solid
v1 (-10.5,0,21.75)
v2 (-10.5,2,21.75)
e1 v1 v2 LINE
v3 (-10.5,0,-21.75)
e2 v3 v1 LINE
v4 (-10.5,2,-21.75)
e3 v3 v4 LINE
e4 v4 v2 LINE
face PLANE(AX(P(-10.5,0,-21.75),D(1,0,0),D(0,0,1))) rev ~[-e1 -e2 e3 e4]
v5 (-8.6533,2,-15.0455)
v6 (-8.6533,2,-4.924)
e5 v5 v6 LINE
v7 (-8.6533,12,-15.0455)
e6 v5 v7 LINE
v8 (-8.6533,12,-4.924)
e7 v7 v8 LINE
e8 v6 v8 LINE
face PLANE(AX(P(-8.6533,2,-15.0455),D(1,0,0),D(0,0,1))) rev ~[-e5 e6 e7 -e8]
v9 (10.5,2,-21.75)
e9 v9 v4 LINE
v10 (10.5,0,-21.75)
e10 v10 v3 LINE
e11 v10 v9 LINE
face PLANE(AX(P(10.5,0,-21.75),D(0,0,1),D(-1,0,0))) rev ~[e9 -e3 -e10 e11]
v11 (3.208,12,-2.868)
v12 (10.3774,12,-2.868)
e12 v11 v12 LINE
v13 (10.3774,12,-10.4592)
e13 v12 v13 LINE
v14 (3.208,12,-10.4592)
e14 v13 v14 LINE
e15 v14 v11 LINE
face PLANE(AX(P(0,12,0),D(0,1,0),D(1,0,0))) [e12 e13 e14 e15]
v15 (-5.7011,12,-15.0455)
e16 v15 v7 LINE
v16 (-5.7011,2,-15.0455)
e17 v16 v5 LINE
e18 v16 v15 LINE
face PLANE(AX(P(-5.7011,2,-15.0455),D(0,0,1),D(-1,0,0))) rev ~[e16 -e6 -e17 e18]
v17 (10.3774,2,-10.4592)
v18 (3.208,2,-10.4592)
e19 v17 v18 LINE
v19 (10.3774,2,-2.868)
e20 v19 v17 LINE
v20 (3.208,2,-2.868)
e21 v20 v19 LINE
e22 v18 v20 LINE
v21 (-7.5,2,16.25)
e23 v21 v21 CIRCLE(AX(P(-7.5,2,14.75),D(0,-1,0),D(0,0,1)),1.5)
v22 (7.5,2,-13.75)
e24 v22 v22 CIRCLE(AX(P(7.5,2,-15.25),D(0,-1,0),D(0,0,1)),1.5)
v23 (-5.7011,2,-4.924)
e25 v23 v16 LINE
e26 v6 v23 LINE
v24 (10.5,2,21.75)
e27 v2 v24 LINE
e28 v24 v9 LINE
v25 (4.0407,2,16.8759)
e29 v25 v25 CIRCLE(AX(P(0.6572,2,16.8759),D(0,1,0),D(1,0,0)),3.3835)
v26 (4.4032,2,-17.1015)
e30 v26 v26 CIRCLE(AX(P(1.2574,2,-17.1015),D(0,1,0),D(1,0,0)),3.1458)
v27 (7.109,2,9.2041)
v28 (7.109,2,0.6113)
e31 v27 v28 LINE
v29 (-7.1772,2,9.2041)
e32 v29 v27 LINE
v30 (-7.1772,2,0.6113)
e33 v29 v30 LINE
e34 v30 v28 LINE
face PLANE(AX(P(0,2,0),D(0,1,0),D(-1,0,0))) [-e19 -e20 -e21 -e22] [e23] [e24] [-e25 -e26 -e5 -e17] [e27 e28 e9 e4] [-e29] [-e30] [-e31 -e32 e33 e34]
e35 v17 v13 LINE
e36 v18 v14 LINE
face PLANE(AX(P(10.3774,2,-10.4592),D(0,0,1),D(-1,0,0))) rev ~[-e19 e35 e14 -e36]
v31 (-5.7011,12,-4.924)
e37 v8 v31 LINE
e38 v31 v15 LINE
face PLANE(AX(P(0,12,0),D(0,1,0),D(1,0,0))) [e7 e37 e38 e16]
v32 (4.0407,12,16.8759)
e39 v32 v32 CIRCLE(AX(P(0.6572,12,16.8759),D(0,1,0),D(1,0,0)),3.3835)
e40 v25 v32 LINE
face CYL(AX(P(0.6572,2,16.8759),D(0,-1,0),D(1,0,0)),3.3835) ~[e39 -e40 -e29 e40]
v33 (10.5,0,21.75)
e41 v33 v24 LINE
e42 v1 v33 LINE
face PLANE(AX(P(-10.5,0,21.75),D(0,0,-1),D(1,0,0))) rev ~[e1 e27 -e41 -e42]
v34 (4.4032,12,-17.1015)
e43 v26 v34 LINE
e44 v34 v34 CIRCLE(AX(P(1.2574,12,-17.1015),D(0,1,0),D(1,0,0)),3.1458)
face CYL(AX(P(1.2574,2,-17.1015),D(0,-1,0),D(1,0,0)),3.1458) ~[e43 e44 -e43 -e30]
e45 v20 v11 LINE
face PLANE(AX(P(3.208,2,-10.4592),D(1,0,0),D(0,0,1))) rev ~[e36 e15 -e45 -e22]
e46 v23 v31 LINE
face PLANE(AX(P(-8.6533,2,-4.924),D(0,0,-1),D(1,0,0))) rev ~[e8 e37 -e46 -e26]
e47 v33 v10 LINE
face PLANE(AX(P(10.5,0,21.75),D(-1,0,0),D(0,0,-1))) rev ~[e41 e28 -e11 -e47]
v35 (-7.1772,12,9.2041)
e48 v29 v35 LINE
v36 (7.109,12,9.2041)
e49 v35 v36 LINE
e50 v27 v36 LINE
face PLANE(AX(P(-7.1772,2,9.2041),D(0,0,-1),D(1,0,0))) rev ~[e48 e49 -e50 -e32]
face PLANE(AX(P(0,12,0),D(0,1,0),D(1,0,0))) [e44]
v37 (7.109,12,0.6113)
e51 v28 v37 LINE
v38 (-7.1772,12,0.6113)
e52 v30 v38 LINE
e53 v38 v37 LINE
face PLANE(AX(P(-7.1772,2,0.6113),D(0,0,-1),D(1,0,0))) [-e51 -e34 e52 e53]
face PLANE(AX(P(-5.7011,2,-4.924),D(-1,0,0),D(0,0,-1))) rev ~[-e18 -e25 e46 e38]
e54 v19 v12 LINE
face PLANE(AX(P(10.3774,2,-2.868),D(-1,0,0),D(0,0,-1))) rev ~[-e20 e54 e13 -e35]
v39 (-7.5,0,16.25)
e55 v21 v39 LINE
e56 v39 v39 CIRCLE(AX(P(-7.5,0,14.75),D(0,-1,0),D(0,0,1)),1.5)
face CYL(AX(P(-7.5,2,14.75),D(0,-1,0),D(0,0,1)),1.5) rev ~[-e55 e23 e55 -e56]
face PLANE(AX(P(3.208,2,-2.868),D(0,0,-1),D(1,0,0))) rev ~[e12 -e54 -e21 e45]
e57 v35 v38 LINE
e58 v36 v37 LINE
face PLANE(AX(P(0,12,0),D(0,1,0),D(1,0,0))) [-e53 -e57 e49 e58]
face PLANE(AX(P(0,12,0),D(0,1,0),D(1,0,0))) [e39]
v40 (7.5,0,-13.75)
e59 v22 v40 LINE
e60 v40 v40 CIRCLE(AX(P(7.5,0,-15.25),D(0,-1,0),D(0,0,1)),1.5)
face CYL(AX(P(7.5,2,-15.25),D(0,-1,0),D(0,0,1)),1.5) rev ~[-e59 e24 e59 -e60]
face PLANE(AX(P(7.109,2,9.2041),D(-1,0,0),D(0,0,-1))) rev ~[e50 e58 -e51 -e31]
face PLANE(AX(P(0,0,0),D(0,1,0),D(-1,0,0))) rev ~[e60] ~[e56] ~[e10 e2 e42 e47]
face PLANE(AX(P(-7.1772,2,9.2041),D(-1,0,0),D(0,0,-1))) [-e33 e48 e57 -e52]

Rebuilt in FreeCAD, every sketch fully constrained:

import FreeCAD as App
import Part
import Sketcher


def add_polygon(sketch, points):
    """Adds a closed chain of lines whose ends are joined by coincident constraints."""
    first, n = sketch.GeometryCount, len(points)
    for a, b in zip(points, points[1:] + points[:1]):
        sketch.addGeometry(Part.LineSegment(App.Vector(*a, 0), App.Vector(*b, 0)), False)
    for i in range(n):
        sketch.addConstraint(Sketcher.Constraint("Coincident", first + i, 2, first + (i + 1) % n, 1))

doc = App.newDocument("Part")
params = doc.addObject("Spreadsheet::Sheet", "Params")
for row, (alias, value) in enumerate([
    ("sketch1_width", "21 mm"),
    ("sketch1_height", "43.5 mm"),
    ("pad1_length", "2 mm"),
    ("sketch2_diameter", "3 mm"),
    ("hole_diameter", "3 mm"),
    ("pad2_length", "10 mm"),
], start=1):
    params.set(f"A{row}", alias)
    params.set(f"B{row}", "=" + value)
    params.setAlias(f"B{row}", alias)

body = doc.addObject("PartDesign::Body", "Body")

# Sketch on XZ plane
sketch1 = body.newObject("Sketcher::SketchObject", "Sketch")
sketch1.AttachmentSupport = (doc.getObject("XZ_Plane"), [""])
sketch1.MapMode = "FlatFace"
add_polygon(sketch1, [(10, 22), (10, -22), (-10, -22), (-10, 22)])  # lines 0-3
sketch1.addConstraint(Sketcher.Constraint("Vertical", 0))
sketch1.addConstraint(Sketcher.Constraint("Horizontal", 1))
sketch1.addConstraint(Sketcher.Constraint("Vertical", 2))
sketch1.addConstraint(Sketcher.Constraint("Horizontal", 3))
sketch1.addConstraint(Sketcher.Constraint("Symmetric", 0, 2, 2, 2, -1, 1))
sketch1.addConstraint(Sketcher.Constraint("DistanceX", 1, 2, 1, 1, 21.0))
sketch1.addConstraint(Sketcher.Constraint("DistanceY", 0, 2, 0, 1, 43.5))
sketch1.setExpression("Constraints[9]", "Params.sketch1_width")
sketch1.setExpression("Constraints[10]", "Params.sketch1_height")
pad1 = body.newObject("PartDesign::Pad", "Pad")
pad1.Profile = sketch1
pad1.setExpression("Length", "Params.pad1_length")
pad1.Reversed = True

# Sketch on XZ plane
sketch2 = body.newObject("Sketcher::SketchObject", "Sketch001")
sketch2.AttachmentSupport = (doc.getObject("XZ_Plane"), [""])
sketch2.MapMode = "FlatFace"
sketch2.AttachmentOffset = App.Placement(App.Vector(0, 0, -2), App.Rotation())
sketch2.addGeometry(Part.Circle(App.Vector(-7.5, 14.8, 0), App.Vector(0, 0, 1), 1.5), False)
sketch2.addGeometry(Part.Circle(App.Vector(7.5, -15.2, 0), App.Vector(0, 0, 1), 1.5), False)
sketch2.addConstraint(Sketcher.Constraint("Equal", 0, 1))
sketch2.addConstraint(Sketcher.Constraint("Diameter", 0, 3.0))
sketch2.addConstraint(Sketcher.Constraint("DistanceX", 0, 3, 1, 3, 15.0))
sketch2.addConstraint(Sketcher.Constraint("DistanceY", 1, 3, 0, 3, 30.0))
sketch2.addConstraint(Sketcher.Constraint("DistanceX", 0, 3, -1, 1, 7.5))
sketch2.addConstraint(Sketcher.Constraint("DistanceY", -1, 1, 0, 3, 14.75))
sketch2.setExpression("Constraints[1]", "Params.sketch2_diameter")
doc.recompute()
hole = body.newObject("PartDesign::Hole", "Hole")
hole.Profile = sketch2
hole.ThreadType = "None"
hole.setExpression("Diameter", "Params.hole_diameter")
hole.DepthType = "ThroughAll"
hole.Reversed = True

# Sketch on XZ plane
sketch3 = body.newObject("Sketcher::SketchObject", "Sketch002")
sketch3.AttachmentSupport = (doc.getObject("XZ_Plane"), [""])
sketch3.MapMode = "FlatFace"
sketch3.AttachmentOffset = App.Placement(App.Vector(0, 0, -2), App.Rotation())
add_polygon(sketch3, [(-7.2, 0.6), (-7.2, 9.2), (7.1, 9.2), (7.1, 0.6)])  # lines 0-3
add_polygon(sketch3, [(10.4, -2.9), (10.4, -10.5), (3.2, -10.5), (3.2, -2.9)])  # lines 4-7
add_polygon(sketch3, [(-5.7, -4.9), (-5.7, -15), (-8.7, -15), (-8.7, -4.9)])  # lines 8-11
sketch3.addGeometry(Part.Circle(App.Vector(0.7, 16.9, 0), App.Vector(0, 0, 1), 3.4), False)  # 12
sketch3.addGeometry(Part.Circle(App.Vector(1.3, -17.1, 0), App.Vector(0, 0, 1), 3.1), False)  # 13
sketch3.addConstraint(Sketcher.Constraint("Vertical", 0))
sketch3.addConstraint(Sketcher.Constraint("Horizontal", 1))
sketch3.addConstraint(Sketcher.Constraint("Vertical", 2))
sketch3.addConstraint(Sketcher.Constraint("Horizontal", 3))
sketch3.addConstraint(Sketcher.Constraint("Vertical", 4))
sketch3.addConstraint(Sketcher.Constraint("Horizontal", 5))
sketch3.addConstraint(Sketcher.Constraint("Vertical", 6))
sketch3.addConstraint(Sketcher.Constraint("Horizontal", 7))
sketch3.addConstraint(Sketcher.Constraint("Vertical", 8))
sketch3.addConstraint(Sketcher.Constraint("Horizontal", 9))
sketch3.addConstraint(Sketcher.Constraint("Vertical", 10))
sketch3.addConstraint(Sketcher.Constraint("Horizontal", 11))
sketch3.addConstraint(Sketcher.Constraint("Diameter", 12, 6.767))
sketch3.addConstraint(Sketcher.Constraint("Diameter", 13, 6.2916))
sketch3.addConstraint(Sketcher.Constraint("DistanceX", 13, 3, 4, 2, 9.12))
sketch3.addConstraint(Sketcher.Constraint("DistanceX", 1, 1, 1, 2, 14.2862))
sketch3.addConstraint(Sketcher.Constraint("DistanceX", 5, 2, 5, 1, 7.1694))
sketch3.addConstraint(Sketcher.Constraint("DistanceX", 9, 2, 9, 1, 2.9522))
sketch3.addConstraint(Sketcher.Constraint("DistanceY", 0, 1, 0, 2, 8.5928))
sketch3.addConstraint(Sketcher.Constraint("DistanceY", 4, 2, 4, 1, 7.5912))
sketch3.addConstraint(Sketcher.Constraint("DistanceY", 8, 2, 8, 1, 10.1215))
sketch3.addConstraint(Sketcher.Constraint("DistanceY", -1, 1, 12, 3, 16.876))
sketch3.addConstraint(Sketcher.Constraint("DistanceY", -1, 1, 0, 2, 9.204))
sketch3.addConstraint(Sketcher.Constraint("DistanceX", -1, 1, 1, 2, 7.109))
sketch3.addConstraint(Sketcher.Constraint("DistanceX", -1, 1, 5, 2, 3.208))
sketch3.addConstraint(Sketcher.Constraint("DistanceY", 6, 2, -1, 1, 2.868))
sketch3.addConstraint(Sketcher.Constraint("DistanceX", 8, 2, -1, 1, 5.701))
sketch3.addConstraint(Sketcher.Constraint("DistanceY", 10, 2, -1, 1, 4.924))
sketch3.addConstraint(Sketcher.Constraint("DistanceY", 13, 3, 8, 2, 2.056))
sketch3.addConstraint(Sketcher.Constraint("DistanceX", -1, 1, 12, 3, 0.6572))
pad2 = body.newObject("PartDesign::Pad", "Pad001")
pad2.Profile = sketch3
pad2.setExpression("Length", "Params.pad2_length")
pad2.Reversed = True

doc.recompute()
